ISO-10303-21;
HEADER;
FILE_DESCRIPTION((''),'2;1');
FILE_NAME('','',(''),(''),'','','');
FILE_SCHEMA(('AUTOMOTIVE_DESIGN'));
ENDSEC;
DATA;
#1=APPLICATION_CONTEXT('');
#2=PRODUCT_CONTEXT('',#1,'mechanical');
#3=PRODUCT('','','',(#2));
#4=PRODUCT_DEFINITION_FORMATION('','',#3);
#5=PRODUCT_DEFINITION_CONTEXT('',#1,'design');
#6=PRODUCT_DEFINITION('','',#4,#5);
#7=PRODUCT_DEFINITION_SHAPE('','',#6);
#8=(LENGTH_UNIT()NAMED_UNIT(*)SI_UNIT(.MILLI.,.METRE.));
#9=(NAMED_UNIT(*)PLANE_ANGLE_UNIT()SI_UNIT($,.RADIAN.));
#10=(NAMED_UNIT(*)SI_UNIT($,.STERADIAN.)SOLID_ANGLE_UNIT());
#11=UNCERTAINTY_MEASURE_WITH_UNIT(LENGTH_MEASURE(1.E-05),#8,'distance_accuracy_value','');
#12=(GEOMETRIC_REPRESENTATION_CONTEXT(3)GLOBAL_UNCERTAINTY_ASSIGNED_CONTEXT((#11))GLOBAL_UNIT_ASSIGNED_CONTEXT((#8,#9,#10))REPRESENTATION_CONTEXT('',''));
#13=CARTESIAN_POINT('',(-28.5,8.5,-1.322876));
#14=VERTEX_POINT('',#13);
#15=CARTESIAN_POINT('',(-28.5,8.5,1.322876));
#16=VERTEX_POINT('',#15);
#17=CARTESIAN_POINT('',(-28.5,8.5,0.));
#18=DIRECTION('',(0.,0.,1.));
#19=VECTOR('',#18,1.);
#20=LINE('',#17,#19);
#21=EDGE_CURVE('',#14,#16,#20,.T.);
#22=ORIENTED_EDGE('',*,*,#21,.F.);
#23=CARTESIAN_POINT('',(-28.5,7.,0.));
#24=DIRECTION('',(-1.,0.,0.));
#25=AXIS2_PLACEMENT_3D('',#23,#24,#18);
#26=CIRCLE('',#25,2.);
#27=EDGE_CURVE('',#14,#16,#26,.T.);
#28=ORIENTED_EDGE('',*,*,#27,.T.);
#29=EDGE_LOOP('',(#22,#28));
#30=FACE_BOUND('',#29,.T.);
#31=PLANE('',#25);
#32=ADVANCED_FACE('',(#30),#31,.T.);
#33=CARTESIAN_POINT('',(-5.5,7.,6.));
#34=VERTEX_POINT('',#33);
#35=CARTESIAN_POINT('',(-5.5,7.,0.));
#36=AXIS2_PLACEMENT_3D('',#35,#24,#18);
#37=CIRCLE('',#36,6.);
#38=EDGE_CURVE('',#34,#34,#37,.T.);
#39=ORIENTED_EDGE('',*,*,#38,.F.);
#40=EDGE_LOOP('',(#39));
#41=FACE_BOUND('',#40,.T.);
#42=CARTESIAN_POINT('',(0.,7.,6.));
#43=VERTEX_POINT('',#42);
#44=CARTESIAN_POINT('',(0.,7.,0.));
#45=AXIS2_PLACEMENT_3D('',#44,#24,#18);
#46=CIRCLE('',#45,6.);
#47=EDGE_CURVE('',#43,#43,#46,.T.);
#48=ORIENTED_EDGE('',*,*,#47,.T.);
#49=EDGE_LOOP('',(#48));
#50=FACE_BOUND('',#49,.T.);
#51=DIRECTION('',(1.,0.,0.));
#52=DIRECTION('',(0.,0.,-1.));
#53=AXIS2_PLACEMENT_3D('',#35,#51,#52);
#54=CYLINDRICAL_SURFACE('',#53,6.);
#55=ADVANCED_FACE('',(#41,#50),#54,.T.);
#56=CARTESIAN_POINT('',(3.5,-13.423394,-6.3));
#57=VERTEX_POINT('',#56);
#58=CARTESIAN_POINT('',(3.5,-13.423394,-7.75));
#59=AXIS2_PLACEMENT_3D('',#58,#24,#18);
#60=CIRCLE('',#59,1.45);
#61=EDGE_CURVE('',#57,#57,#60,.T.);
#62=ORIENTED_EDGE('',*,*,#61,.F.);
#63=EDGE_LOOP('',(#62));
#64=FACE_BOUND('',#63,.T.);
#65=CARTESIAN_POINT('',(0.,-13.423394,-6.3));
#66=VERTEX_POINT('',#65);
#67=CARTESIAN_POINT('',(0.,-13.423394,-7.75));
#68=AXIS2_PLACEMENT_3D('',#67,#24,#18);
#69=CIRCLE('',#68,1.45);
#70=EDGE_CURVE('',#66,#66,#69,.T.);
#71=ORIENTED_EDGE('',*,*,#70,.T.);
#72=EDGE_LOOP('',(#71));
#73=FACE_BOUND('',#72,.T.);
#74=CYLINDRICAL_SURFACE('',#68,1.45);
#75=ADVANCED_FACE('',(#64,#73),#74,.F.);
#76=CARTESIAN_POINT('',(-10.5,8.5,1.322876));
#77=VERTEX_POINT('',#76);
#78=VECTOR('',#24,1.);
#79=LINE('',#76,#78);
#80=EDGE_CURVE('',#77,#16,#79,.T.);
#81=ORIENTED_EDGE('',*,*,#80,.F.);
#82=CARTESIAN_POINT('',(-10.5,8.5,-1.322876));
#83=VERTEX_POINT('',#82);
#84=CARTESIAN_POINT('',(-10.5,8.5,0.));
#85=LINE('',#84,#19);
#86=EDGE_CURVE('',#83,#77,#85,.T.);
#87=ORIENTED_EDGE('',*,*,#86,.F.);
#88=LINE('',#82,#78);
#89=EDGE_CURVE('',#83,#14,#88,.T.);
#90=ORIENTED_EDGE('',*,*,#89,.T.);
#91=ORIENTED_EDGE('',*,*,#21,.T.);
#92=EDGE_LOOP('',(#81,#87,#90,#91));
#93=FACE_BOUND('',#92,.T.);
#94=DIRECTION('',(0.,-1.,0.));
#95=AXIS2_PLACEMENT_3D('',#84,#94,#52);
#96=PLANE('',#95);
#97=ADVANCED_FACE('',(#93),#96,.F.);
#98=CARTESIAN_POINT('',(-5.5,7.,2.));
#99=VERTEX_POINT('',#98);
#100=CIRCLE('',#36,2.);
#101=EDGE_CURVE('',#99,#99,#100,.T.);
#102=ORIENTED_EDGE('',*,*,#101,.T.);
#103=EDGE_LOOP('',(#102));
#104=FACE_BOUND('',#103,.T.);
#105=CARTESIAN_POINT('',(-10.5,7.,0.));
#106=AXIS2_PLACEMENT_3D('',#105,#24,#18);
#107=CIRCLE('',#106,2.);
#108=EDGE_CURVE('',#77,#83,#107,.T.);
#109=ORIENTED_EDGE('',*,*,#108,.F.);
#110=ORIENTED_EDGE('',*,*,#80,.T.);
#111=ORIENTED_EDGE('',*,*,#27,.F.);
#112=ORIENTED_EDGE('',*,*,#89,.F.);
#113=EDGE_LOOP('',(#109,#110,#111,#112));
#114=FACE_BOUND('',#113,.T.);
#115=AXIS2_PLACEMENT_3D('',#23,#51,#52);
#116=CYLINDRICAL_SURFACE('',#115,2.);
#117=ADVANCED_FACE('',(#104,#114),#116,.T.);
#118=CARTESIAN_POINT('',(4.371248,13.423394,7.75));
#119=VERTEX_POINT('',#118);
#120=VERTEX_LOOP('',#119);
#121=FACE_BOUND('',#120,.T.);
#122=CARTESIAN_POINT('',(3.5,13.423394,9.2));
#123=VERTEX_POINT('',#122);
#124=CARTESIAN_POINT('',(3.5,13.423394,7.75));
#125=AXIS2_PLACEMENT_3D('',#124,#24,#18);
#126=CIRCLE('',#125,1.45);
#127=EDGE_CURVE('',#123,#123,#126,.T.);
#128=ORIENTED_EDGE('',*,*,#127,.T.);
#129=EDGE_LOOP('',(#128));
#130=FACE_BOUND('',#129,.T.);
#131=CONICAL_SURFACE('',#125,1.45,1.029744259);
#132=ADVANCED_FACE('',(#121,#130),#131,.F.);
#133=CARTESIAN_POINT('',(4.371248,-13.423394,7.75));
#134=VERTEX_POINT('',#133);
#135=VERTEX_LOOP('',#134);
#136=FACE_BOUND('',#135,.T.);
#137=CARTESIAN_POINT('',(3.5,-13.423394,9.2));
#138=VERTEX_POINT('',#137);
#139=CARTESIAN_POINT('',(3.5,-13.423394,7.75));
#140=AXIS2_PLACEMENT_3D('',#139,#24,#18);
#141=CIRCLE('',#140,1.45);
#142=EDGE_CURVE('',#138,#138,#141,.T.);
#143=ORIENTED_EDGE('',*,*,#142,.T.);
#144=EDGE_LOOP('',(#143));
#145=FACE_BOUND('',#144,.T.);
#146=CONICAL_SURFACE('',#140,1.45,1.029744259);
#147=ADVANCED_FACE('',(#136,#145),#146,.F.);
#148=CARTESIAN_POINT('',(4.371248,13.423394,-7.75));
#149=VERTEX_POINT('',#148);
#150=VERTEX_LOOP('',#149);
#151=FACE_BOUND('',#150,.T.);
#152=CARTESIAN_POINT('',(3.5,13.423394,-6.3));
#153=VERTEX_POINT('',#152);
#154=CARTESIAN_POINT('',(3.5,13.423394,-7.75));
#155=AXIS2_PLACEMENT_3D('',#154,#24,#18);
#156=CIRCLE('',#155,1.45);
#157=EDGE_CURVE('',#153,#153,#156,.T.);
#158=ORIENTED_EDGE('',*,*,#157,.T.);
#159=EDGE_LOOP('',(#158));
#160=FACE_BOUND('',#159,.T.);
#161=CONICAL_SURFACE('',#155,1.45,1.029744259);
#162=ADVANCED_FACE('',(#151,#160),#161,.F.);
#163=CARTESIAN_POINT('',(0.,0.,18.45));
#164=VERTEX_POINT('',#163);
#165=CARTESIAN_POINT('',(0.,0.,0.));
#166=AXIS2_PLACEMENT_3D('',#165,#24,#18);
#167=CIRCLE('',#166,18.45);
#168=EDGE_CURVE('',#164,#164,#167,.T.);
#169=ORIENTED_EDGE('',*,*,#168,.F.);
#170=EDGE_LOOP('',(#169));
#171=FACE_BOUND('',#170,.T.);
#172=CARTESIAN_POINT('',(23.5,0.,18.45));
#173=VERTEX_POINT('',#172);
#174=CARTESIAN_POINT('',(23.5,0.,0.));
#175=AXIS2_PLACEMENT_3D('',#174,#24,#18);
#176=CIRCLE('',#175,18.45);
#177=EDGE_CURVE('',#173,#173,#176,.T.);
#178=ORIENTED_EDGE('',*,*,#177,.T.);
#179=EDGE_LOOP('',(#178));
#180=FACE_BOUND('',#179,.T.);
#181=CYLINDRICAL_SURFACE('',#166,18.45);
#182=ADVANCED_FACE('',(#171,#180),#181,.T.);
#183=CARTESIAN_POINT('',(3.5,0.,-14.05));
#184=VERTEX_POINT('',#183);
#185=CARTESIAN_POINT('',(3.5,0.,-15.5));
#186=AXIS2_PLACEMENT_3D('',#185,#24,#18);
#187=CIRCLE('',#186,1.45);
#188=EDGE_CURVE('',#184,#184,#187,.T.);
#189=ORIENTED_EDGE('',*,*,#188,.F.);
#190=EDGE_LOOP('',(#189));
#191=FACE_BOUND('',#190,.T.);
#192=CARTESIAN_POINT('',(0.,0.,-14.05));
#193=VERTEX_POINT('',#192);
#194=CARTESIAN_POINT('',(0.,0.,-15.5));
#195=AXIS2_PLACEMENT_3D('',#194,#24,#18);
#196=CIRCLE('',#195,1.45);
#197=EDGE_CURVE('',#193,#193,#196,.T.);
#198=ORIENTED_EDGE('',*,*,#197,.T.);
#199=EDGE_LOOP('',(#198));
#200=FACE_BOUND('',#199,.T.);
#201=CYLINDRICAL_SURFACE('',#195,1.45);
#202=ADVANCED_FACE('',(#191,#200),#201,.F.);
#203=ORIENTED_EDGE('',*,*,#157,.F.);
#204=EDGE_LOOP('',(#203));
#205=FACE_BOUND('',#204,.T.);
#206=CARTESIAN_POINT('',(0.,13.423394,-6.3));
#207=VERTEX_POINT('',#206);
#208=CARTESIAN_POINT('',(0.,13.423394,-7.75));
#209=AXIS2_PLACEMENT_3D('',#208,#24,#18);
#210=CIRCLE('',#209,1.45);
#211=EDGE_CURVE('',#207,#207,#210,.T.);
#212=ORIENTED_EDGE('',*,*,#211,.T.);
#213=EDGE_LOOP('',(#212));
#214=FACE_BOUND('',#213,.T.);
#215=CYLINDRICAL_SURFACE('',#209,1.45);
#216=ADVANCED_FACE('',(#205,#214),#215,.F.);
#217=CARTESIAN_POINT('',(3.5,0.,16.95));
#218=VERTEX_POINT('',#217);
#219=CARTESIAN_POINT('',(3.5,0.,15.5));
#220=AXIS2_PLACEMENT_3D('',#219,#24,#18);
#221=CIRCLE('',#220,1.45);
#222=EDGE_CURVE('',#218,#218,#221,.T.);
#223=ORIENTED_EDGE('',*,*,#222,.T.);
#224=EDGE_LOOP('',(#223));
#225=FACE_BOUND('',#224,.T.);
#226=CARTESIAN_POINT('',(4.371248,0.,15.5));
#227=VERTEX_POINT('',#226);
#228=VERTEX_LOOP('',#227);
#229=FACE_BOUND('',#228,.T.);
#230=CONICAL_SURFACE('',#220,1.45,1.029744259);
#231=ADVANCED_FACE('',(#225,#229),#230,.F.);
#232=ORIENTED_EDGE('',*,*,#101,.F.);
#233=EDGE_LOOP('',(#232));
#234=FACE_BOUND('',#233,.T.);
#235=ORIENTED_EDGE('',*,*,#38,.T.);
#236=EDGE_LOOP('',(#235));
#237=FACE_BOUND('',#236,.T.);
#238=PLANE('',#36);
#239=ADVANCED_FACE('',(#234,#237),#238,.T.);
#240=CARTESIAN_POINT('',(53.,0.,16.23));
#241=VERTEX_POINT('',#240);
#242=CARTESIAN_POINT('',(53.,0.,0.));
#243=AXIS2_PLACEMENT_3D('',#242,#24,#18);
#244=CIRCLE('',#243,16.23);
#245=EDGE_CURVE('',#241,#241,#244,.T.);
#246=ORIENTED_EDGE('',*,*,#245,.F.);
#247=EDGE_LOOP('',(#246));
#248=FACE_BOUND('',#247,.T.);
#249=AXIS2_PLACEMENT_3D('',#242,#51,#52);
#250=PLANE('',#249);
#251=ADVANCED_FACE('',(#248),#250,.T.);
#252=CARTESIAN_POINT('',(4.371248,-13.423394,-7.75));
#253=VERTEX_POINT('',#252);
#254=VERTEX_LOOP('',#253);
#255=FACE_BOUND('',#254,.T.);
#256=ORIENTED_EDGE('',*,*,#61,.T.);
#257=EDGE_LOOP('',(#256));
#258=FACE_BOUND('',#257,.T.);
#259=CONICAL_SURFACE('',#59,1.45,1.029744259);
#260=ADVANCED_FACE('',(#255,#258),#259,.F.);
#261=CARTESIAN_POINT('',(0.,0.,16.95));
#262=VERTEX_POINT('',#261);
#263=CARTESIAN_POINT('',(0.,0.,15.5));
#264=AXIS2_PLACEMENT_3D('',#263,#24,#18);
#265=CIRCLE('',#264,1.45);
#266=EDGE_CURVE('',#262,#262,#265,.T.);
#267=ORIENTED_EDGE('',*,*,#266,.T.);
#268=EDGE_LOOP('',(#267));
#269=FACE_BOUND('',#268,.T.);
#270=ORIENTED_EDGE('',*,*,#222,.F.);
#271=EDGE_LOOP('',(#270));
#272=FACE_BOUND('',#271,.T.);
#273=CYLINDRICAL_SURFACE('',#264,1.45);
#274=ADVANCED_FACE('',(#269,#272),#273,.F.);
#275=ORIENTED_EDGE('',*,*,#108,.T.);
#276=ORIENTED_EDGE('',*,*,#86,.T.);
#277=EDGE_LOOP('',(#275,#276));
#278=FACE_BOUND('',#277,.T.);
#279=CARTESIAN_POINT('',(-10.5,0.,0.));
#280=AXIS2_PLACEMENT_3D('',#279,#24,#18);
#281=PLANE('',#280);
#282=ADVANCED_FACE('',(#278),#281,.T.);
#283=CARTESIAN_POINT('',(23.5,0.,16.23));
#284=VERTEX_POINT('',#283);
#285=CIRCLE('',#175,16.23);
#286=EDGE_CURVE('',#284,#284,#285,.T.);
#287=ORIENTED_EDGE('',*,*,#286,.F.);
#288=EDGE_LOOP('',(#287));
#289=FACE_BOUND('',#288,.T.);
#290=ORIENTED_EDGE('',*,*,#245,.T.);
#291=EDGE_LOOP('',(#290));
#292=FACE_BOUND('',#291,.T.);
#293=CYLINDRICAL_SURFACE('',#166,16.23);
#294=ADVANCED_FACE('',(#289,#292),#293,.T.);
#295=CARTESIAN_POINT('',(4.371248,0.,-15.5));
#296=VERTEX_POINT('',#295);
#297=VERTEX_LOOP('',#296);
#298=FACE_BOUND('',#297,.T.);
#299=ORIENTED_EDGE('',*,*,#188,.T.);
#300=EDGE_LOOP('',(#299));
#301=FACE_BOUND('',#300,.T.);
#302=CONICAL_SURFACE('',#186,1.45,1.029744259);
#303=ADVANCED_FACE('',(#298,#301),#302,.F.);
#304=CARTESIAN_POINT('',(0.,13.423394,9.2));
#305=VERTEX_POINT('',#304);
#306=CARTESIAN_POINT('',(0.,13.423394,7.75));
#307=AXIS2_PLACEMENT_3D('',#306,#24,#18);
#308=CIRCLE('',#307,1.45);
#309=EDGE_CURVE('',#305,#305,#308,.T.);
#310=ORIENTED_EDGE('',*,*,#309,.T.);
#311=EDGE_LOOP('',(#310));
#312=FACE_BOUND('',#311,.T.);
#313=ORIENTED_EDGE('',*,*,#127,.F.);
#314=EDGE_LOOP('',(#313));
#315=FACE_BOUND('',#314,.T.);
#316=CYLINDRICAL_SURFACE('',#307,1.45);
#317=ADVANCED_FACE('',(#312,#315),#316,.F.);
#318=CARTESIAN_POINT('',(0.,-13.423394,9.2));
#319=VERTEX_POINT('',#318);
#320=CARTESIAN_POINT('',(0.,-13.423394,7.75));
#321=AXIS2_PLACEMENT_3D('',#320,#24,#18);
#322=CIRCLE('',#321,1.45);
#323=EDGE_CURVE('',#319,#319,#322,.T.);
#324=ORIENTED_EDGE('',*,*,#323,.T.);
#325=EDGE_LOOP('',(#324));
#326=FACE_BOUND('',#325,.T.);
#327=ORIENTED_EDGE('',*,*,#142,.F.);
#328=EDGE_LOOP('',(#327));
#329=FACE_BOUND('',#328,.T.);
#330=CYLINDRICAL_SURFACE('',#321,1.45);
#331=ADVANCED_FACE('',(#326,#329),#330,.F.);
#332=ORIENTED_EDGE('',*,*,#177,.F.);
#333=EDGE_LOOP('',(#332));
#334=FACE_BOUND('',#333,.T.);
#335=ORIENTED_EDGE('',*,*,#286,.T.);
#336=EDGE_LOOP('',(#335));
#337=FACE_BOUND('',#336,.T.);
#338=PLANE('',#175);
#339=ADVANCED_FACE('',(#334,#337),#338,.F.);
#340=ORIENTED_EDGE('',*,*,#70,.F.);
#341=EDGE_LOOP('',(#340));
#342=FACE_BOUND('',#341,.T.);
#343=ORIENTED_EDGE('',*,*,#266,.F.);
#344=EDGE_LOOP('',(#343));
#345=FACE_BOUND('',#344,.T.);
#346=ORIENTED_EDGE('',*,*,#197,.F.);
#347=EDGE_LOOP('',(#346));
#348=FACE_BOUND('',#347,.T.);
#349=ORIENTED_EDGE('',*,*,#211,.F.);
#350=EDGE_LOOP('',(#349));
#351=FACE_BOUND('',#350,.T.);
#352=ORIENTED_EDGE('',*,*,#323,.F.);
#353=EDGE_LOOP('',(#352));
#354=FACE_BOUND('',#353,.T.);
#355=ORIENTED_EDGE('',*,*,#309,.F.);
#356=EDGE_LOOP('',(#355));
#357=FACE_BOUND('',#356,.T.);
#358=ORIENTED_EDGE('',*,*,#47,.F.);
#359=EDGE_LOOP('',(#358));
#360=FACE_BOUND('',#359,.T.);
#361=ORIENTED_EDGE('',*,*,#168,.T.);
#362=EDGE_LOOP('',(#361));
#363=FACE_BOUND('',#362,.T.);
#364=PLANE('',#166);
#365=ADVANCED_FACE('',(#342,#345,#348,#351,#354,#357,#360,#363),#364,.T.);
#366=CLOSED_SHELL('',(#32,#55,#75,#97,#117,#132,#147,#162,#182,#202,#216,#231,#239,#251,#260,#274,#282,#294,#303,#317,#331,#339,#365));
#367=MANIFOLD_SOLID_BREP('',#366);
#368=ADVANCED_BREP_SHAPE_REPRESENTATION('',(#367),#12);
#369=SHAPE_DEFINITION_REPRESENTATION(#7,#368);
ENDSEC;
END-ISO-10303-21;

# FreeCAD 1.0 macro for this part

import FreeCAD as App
import Part
import Sketcher

V = App.Vector
Q = App.Units.Quantity

doc = App.newDocument("Part")
body = doc.addObject("PartDesign::Body", "Body")

# Sketch on XY plane
sketch1 = body.newObject("Sketcher::SketchObject", "Sketch")
sketch1.AttachmentSupport = (doc.getObject("XY_Plane"), [""])
sketch1.MapMode = "FlatFace"
sketch1.addGeometry([
    Part.LineSegment(V(0, 18.4, 0), V(0, 0, 0)),  # 0
    Part.LineSegment(V(0, 0, 0), V(53, 0, 0)),  # 1
    Part.LineSegment(V(53, 0, 0), V(53, 16.2, 0)),  # 2
    Part.LineSegment(V(53, 16.2, 0), V(23.5, 16.2, 0)),  # 3
    Part.LineSegment(V(23.5, 16.2, 0), V(23.5, 18.4, 0)),  # 4
    Part.LineSegment(V(23.5, 18.4, 0), V(0, 18.4, 0)),  # 5
], False)
sketch1.addConstraint([
    Sketcher.Constraint("Coincident", 0, 2, 1, 1),
    Sketcher.Constraint("Coincident", 1, 2, 2, 1),
    Sketcher.Constraint("Coincident", 2, 2, 3, 1),
    Sketcher.Constraint("Coincident", 3, 2, 4, 1),
    Sketcher.Constraint("Coincident", 4, 2, 5, 1),
    Sketcher.Constraint("Coincident", 5, 2, 0, 1),
    Sketcher.Constraint("Vertical", 0),
    Sketcher.Constraint("Horizontal", 1),
    Sketcher.Constraint("Vertical", 2),
    Sketcher.Constraint("Horizontal", 3),
    Sketcher.Constraint("Vertical", 4),
    Sketcher.Constraint("Horizontal", 5),
    Sketcher.Constraint("Coincident", 0, 2, -1, 1),
    Sketcher.Constraint("DistanceX", 1, 1, 1, 2, Q("53 mm")),
    Sketcher.Constraint("DistanceX", 3, 2, 3, 1, Q("29.5 mm")),
    Sketcher.Constraint("DistanceY", 0, 2, 0, 1, Q("18.45 mm")),
    Sketcher.Constraint("DistanceY", 2, 1, 2, 2, Q("16.23 mm")),
])
revolution = body.newObject("PartDesign::Revolution", "Revolution")
revolution.Profile = sketch1
revolution.ReferenceAxis = (sketch1, ["H_Axis"])
revolution.Angle = 360

# Sketch on YZ plane
sketch2 = body.newObject("Sketcher::SketchObject", "Sketch001")
sketch2.AttachmentSupport = (doc.getObject("YZ_Plane"), [""])
sketch2.MapMode = "FlatFace"
sketch2.addGeometry([
    Part.Circle(V(13.4, 7.8, 0), V(0, 0, 1), 1.4),  # 0
    Part.Circle(V(0, 15.5, 0), V(0, 0, 1), 1.4),  # 1
    Part.Circle(V(-13.4, 7.8, 0), V(0, 0, 1), 1.4),  # 2
    Part.Circle(V(-13.4, -7.8, 0), V(0, 0, 1), 1.4),  # 3
    Part.Circle(V(0, -15.5, 0), V(0, 0, 1), 1.4),  # 4
    Part.Circle(V(13.4, -7.8, 0), V(0, 0, 1), 1.4),  # 5
], False)
sketch2.addConstraint([
    Sketcher.Constraint("Equal", 0, 1),
    Sketcher.Constraint("Equal", 1, 2),
    Sketcher.Constraint("Equal", 2, 3),
    Sketcher.Constraint("Equal", 3, 4),
    Sketcher.Constraint("Equal", 4, 5),
    Sketcher.Constraint("Symmetric", 0, 3, 3, 3, -1, 1),
    Sketcher.Constraint("Symmetric", 1, 3, 4, 3, -1, 1),
    Sketcher.Constraint("Symmetric", 2, 3, 5, 3, -1, 1),
    Sketcher.Constraint("Symmetric", 0, 3, 2, 3, -2),
    Sketcher.Constraint("PointOnObject", 1, 3, -2),
    Sketcher.Constraint("Diameter", 0, Q("2.9 mm")),
    Sketcher.Constraint("DistanceY", 4, 3, 1, 3, Q("31 mm")),
    Sketcher.Constraint("DistanceY", 3, 3, 2, 3, Q("15.5 mm")),
    Sketcher.Constraint("DistanceX", -1, 1, 0, 3, Q("13.423394 mm")),
])
doc.recompute()
hole = body.newObject("PartDesign::Hole", "Hole")
hole.Profile = sketch2
hole.ThreadType = "None"
hole.Diameter = 2.9
hole.DepthType = "Dimension"
hole.Depth = 3.5
hole.DrillPoint = "Angled"
hole.DrillPointAngle = 118
hole.Reversed = True

# Sketch on YZ plane
sketch3 = body.newObject("Sketcher::SketchObject", "Sketch002")
sketch3.AttachmentSupport = (doc.getObject("YZ_Plane"), [""])
sketch3.MapMode = "FlatFace"
sketch3.addGeometry(Part.Circle(V(7, 0, 0), V(0, 0, 1), 6), False)
sketch3.addConstraint([
    Sketcher.Constraint("PointOnObject", 0, 3, -1),
    Sketcher.Constraint("Diameter", 0, Q("12 mm")),
    Sketcher.Constraint("DistanceX", -1, 1, 0, 3, Q("7 mm")),
])
pad1 = body.newObject("PartDesign::Pad", "Pad")
pad1.Profile = sketch3
pad1.Length = 5.5
pad1.Reversed = True

# Sketch on YZ plane
sketch4 = body.newObject("Sketcher::SketchObject", "Sketch003")
sketch4.AttachmentSupport = (doc.getObject("YZ_Plane"), [""])
sketch4.MapMode = "FlatFace"
sketch4.AttachmentOffset = App.Placement(V(0, 0, -5.5), App.Rotation())
sketch4.addGeometry(Part.Circle(V(7, 0, 0), V(0, 0, 1), 2), False)
sketch4.addConstraint([
    Sketcher.Constraint("PointOnObject", 0, 3, -1),
    Sketcher.Constraint("Diameter", 0, Q("4 mm")),
    Sketcher.Constraint("DistanceX", -1, 1, 0, 3, Q("7 mm")),
])
pad2 = body.newObject("PartDesign::Pad", "Pad001")
pad2.Profile = sketch4
pad2.Length = 23
pad2.Reversed = True

# Sketch on YZ plane
sketch5 = body.newObject("Sketcher::SketchObject", "Sketch004")
sketch5.AttachmentSupport = (doc.getObject("YZ_Plane"), [""])
sketch5.MapMode = "FlatFace"
sketch5.AttachmentOffset = App.Placement(V(0, 0, -28.5), App.Rotation())
sketch5.addGeometry([
    Part.LineSegment(V(8, -78, 0), V(8, 78, 0)),
    Part.LineSegment(V(8, 78, 0), V(162, 78, 0)),
    Part.LineSegment(V(162, 78, 0), V(162, -78, 0)),
    Part.LineSegment(V(162, -78, 0), V(8, -78, 0)),
], False)
sketch5.addConstraint([
    Sketcher.Constraint("Coincident", 0, 2, 1, 1),
    Sketcher.Constraint("Coincident", 1, 2, 2, 1),
    Sketcher.Constraint("Coincident", 2, 2, 3, 1),
    Sketcher.Constraint("Coincident", 3, 2, 0, 1),
    Sketcher.Constraint("Vertical", 0),
    Sketcher.Constraint("Horizontal", 1),
    Sketcher.Constraint("Vertical", 2),
    Sketcher.Constraint("Horizontal", 3),
    Sketcher.Constraint("DistanceX", -1, 1, 0, 2, Q("8.5 mm")),
    Sketcher.Constraint("DistanceX", 1, 1, 1, 2, Q("153.702303 mm")),
    Sketcher.Constraint("DistanceY", 0, 1, 0, 2, Q("156.348054 mm")),
    Sketcher.Constraint("DistanceY", -1, 1, 0, 2, Q("78.174027 mm")),
])
pocket1 = body.newObject("PartDesign::Pocket", "Pocket")
pocket1.Profile = sketch5
pocket1.Length = 18
pocket1.Reversed = True

doc.recompute()
